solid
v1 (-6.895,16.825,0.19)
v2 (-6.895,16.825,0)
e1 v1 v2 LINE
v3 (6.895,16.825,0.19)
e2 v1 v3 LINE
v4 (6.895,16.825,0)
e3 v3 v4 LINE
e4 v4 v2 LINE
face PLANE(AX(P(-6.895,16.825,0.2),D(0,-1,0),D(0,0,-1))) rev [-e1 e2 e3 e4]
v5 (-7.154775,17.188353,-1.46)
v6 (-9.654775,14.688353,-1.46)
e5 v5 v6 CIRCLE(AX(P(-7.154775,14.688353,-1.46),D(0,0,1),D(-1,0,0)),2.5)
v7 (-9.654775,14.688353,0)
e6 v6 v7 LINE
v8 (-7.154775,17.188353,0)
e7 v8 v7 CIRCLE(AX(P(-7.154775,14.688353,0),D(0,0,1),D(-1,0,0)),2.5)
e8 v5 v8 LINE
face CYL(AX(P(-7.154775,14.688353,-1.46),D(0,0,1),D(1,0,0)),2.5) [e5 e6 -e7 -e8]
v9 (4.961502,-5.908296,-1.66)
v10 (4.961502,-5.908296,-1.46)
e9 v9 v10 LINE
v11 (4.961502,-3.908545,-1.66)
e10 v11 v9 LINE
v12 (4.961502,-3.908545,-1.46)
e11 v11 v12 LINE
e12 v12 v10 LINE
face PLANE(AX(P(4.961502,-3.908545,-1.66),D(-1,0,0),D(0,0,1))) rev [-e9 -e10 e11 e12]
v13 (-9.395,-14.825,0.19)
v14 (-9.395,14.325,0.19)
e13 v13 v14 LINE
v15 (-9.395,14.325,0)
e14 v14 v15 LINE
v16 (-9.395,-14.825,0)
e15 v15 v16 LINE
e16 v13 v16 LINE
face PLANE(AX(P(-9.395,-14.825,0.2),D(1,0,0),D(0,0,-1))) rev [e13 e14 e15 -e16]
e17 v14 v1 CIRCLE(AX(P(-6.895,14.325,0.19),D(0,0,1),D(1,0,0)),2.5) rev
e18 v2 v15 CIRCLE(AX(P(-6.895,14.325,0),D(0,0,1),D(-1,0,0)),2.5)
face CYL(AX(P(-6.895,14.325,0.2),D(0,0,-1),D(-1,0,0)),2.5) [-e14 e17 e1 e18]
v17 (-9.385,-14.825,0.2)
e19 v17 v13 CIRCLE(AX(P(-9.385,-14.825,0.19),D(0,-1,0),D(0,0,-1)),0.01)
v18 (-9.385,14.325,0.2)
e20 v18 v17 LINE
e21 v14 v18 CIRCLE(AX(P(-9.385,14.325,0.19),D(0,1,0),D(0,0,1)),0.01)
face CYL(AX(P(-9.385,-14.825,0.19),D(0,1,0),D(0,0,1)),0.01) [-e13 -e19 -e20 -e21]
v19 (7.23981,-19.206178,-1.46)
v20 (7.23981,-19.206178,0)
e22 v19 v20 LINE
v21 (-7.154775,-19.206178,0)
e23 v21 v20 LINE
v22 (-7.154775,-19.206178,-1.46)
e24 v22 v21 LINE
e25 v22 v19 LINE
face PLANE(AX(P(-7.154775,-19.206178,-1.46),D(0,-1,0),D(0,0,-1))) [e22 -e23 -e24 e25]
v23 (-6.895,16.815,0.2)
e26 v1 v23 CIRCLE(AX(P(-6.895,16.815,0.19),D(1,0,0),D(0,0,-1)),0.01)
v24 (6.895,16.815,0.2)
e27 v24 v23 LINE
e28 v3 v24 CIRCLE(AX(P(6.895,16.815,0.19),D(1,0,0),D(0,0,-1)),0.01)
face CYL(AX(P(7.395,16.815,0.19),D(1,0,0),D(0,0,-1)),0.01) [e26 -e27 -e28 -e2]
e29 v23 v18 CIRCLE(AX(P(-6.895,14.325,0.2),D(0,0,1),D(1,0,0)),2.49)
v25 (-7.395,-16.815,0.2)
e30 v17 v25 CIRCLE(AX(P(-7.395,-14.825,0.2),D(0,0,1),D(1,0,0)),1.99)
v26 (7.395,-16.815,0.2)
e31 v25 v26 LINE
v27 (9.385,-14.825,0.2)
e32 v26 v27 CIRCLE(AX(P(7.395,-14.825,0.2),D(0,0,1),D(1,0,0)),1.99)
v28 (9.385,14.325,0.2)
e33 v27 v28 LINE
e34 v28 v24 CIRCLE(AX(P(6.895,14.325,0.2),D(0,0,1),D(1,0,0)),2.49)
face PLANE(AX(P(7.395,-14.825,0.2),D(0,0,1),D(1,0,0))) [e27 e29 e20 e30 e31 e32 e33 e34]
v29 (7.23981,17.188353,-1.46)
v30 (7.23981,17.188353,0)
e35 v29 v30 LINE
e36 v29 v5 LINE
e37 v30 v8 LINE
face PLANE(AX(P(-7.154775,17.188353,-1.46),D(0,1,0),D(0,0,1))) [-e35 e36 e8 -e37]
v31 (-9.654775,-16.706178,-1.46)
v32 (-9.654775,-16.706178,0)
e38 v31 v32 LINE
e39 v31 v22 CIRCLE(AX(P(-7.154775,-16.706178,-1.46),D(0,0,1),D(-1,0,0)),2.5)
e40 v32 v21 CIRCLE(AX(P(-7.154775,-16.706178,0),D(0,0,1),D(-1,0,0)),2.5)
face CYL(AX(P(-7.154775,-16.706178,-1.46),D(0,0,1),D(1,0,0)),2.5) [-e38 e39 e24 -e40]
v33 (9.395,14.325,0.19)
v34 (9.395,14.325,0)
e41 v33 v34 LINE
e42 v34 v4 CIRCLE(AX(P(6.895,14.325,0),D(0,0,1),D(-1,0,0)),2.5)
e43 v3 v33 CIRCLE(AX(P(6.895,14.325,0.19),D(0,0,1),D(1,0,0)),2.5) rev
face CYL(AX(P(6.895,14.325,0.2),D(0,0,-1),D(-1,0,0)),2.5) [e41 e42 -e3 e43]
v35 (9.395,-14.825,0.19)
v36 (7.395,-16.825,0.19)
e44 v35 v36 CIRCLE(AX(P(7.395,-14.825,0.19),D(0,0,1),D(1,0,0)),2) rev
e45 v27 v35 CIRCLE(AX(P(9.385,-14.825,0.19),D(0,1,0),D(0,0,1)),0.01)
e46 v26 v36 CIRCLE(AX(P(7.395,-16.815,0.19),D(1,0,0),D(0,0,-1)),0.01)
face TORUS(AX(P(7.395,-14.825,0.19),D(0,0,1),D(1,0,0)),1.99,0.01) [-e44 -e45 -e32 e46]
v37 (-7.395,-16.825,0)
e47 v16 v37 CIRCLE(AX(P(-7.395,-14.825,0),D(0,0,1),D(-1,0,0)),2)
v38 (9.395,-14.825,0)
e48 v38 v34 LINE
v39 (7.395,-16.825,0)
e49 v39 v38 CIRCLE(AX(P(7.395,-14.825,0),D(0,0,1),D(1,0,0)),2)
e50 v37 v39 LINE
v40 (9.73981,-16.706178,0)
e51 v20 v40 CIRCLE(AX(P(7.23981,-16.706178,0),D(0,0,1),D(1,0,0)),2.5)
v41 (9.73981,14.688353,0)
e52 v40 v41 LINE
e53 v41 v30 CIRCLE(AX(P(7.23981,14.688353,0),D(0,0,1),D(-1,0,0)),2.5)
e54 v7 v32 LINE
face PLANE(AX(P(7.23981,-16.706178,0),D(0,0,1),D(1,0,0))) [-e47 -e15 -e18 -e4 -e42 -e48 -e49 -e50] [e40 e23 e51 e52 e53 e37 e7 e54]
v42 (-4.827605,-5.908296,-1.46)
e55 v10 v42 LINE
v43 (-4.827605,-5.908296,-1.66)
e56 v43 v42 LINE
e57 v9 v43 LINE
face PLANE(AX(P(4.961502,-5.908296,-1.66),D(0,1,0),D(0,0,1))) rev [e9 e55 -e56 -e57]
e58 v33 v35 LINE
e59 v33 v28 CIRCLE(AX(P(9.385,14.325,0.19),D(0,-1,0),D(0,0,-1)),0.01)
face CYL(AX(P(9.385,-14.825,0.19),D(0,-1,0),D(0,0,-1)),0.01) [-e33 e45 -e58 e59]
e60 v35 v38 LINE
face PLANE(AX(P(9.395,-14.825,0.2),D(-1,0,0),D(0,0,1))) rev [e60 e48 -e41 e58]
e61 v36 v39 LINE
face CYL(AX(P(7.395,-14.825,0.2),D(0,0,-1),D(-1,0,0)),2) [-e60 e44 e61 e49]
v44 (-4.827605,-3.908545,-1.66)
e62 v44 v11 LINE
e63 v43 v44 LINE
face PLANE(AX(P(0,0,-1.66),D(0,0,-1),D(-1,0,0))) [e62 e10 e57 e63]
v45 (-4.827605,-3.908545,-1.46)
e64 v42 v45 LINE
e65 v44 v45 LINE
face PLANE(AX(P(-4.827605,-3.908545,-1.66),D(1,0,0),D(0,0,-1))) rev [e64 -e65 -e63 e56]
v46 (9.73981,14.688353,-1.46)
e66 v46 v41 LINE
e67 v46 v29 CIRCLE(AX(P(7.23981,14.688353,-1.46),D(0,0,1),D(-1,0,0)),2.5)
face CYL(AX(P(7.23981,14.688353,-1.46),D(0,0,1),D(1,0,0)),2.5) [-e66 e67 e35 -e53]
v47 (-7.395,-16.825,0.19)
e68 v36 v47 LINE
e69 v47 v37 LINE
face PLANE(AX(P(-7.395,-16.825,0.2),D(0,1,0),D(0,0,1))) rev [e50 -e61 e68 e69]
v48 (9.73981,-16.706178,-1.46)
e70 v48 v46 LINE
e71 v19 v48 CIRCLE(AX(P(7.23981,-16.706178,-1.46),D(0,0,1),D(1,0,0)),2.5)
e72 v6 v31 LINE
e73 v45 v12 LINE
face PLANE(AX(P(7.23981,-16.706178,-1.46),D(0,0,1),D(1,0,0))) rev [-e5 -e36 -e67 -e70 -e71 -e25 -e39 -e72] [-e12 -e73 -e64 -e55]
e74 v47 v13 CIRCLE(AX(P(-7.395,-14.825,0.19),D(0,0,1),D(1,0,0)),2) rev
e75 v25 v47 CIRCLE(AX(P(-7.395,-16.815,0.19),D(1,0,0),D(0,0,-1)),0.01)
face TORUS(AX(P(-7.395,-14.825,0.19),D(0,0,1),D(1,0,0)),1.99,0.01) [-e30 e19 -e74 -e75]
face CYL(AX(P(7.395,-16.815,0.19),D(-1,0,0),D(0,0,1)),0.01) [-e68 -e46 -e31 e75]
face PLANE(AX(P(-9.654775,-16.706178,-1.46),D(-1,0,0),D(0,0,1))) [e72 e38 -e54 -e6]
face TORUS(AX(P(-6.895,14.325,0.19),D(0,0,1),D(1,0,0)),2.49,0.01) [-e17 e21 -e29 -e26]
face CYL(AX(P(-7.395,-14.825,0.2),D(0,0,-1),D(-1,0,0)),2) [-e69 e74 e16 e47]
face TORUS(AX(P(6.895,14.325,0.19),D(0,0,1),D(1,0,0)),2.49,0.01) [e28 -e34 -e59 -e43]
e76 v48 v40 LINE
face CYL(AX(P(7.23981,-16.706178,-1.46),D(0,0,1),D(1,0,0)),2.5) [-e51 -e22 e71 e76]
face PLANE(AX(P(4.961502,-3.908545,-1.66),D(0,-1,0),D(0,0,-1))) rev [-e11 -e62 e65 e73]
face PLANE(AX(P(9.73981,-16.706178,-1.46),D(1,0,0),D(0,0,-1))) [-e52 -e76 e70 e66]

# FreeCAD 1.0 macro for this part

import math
import FreeCAD as App
import Part
import Sketcher

V = App.Vector
Q = App.Units.Quantity


def edges_at(feature, points):
    """Names of the edges that pass closest to the given points."""
    edges = feature.Shape.Edges
    near = lambda p: min(range(len(edges)), key=lambda i: edges[i].distToShape(Part.Vertex(*p))[0])
    return sorted({f"Edge{near(p) + 1}" for p in points})


def add_polygon(sketch, points):
    """Adds a closed chain of lines whose ends are joined by coincident constraints."""
    first, n = sketch.GeometryCount, len(points)
    for a, b in zip(points, points[1:] + points[:1]):
        sketch.addGeometry(Part.LineSegment(App.Vector(*a, 0), App.Vector(*b, 0)), False)
    for i in range(n):
        sketch.addConstraint(Sketcher.Constraint("Coincident", first + i, 2, first + (i + 1) % n, 1))

doc = App.newDocument("Part")
body = doc.addObject("PartDesign::Body", "Body")

# Sketch on XY plane
sketch1 = body.newObject("Sketcher::SketchObject", "Sketch")
sketch1.AttachmentSupport = (doc.getObject("XY_Plane"), [""])
sketch1.MapMode = "FlatFace"
sketch1.addGeometry([
    Part.LineSegment(V(-7.154775, -19.206178, 0), V(7.23981, -19.206178, 0)),  # 0
    Part.ArcOfCircle(Part.Circle(V(7.23981, -16.706178, 0), V(0, 0, 1), 2.5), math.radians(-90), math.radians(0)),  # 1
    Part.LineSegment(V(9.73981, -16.706178, 0), V(9.73981, 14.688353, 0)),  # 2
    Part.ArcOfCircle(Part.Circle(V(7.23981, 14.688353, 0), V(0, 0, 1), 2.5), math.radians(0), math.radians(90)),  # 3
    Part.LineSegment(V(7.23981, 17.188353, 0), V(-7.154775, 17.188353, 0)),  # 4
    Part.ArcOfCircle(Part.Circle(V(-7.154775, 14.688353, 0), V(0, 0, 1), 2.5), math.radians(90), math.radians(180)),  # 5
    Part.LineSegment(V(-9.654775, 14.688353, 0), V(-9.654775, -16.706178, 0)),  # 6
    Part.ArcOfCircle(Part.Circle(V(-7.154775, -16.706178, 0), V(0, 0, 1), 2.5), math.radians(180), math.radians(270)),  # 7
], False)
sketch1.addConstraint([
    Sketcher.Constraint("Tangent", 0, 2, 1, 1),
    Sketcher.Constraint("Tangent", 1, 2, 2, 1),
    Sketcher.Constraint("Tangent", 2, 2, 3, 1),
    Sketcher.Constraint("Tangent", 3, 2, 4, 1),
    Sketcher.Constraint("Tangent", 4, 2, 5, 1),
    Sketcher.Constraint("Tangent", 5, 2, 6, 1),
    Sketcher.Constraint("Tangent", 6, 2, 7, 1),
    Sketcher.Constraint("Tangent", 7, 2, 0, 1),
    Sketcher.Constraint("Horizontal", 0),
    Sketcher.Constraint("Vertical", 2),
    Sketcher.Constraint("Horizontal", 4),
    Sketcher.Constraint("Vertical", 6),
    Sketcher.Constraint("Equal", 1, 3),
    Sketcher.Constraint("Equal", 3, 5),
    Sketcher.Constraint("Equal", 5, 7),
    Sketcher.Constraint("Radius", 1, Q("2.5 mm")),
    Sketcher.Constraint("DistanceY", 2, 1, 2, 2, Q("31.394531 mm")),
    Sketcher.Constraint("DistanceX", 0, 1, 0, 2, Q("14.394585 mm")),
    Sketcher.Constraint("DistanceX", -1, 1, 1, 3, Q("7.23981 mm")),
    Sketcher.Constraint("DistanceY", 1, 3, -1, 1, Q("16.706178 mm")),
])
pad1 = body.newObject("PartDesign::Pad", "Pad")
pad1.Profile = sketch1
pad1.Length = 1.46
pad1.Reversed = True

# Sketch on XY plane
sketch2 = body.newObject("Sketcher::SketchObject", "Sketch001")
sketch2.AttachmentSupport = (doc.getObject("XY_Plane"), [""])
sketch2.MapMode = "FlatFace"
sketch2.addGeometry([
    Part.LineSegment(V(-6.695, -16.175, 0), V(6.695, -16.175, 0)),  # 0
    Part.ArcOfCircle(Part.Circle(V(6.695, -14.175, 0), V(0, 0, 1), 2), math.radians(-90), math.radians(0)),  # 1
    Part.LineSegment(V(8.695, -14.175, 0), V(8.695, 14.175, 0)),  # 2
    Part.ArcOfCircle(Part.Circle(V(6.695, 14.175, 0), V(0, 0, 1), 2), math.radians(0), math.radians(90)),  # 3
    Part.LineSegment(V(6.695, 16.175, 0), V(-6.695, 16.175, 0)),  # 4
    Part.ArcOfCircle(Part.Circle(V(-6.695, 14.175, 0), V(0, 0, 1), 2), math.radians(90), math.radians(180)),  # 5
    Part.LineSegment(V(-8.695, 14.175, 0), V(-8.695, -14.175, 0)),  # 6
    Part.ArcOfCircle(Part.Circle(V(-6.695, -14.175, 0), V(0, 0, 1), 2), math.radians(-180), math.radians(-90)),  # 7
], False)
sketch2.addConstraint([
    Sketcher.Constraint("Tangent", 0, 2, 1, 1),
    Sketcher.Constraint("Tangent", 1, 2, 2, 1),
    Sketcher.Constraint("Tangent", 2, 2, 3, 1),
    Sketcher.Constraint("Tangent", 3, 2, 4, 1),
    Sketcher.Constraint("Tangent", 4, 2, 5, 1),
    Sketcher.Constraint("Tangent", 5, 2, 6, 1),
    Sketcher.Constraint("Tangent", 6, 2, 7, 1),
    Sketcher.Constraint("Tangent", 7, 2, 0, 1),
    Sketcher.Constraint("Horizontal", 0),
    Sketcher.Constraint("Vertical", 2),
    Sketcher.Constraint("Horizontal", 4),
    Sketcher.Constraint("Vertical", 6),
    Sketcher.Constraint("Equal", 1, 3),
    Sketcher.Constraint("Equal", 3, 5),
    Sketcher.Constraint("Equal", 5, 7),
    Sketcher.Constraint("Symmetric", 1, 3, 5, 3, -1, 1),
    Sketcher.Constraint("Radius", 1, Q("2 mm")),
    Sketcher.Constraint("DistanceX", 0, 1, 0, 2, Q("13.39 mm")),
    Sketcher.Constraint("DistanceY", 2, 1, 2, 2, Q("28.35 mm")),
])
pad2 = body.newObject("PartDesign::Pad", "Pad001")
pad2.Profile = sketch2
pad2.Length = 0.15

# Sketch on XY plane
sketch3 = body.newObject("Sketcher::SketchObject", "Sketch002")
sketch3.AttachmentSupport = (doc.getObject("XY_Plane"), [""])
sketch3.MapMode = "FlatFace"
sketch3.addGeometry([
    Part.LineSegment(V(-7.395, -16.825, 0), V(7.395, -16.825, 0)),  # 0
    Part.ArcOfCircle(Part.Circle(V(7.395, -14.825, 0), V(0, 0, 1), 2), math.radians(-90), math.radians(0)),  # 1
    Part.LineSegment(V(9.395, -14.825, 0), V(9.395, 14.325, 0)),  # 2
    Part.ArcOfCircle(Part.Circle(V(6.895, 14.325, 0), V(0, 0, 1), 2.5), math.radians(0), math.radians(90)),  # 3
    Part.LineSegment(V(6.895, 16.825, 0), V(-6.895, 16.825, 0)),  # 4
    Part.ArcOfCircle(Part.Circle(V(-6.895, 14.325, 0), V(0, 0, 1), 2.5), math.radians(90), math.radians(180)),  # 5
    Part.LineSegment(V(-9.395, 14.325, 0), V(-9.395, -14.825, 0)),  # 6
    Part.ArcOfCircle(Part.Circle(V(-7.395, -14.825, 0), V(0, 0, 1), 2), math.radians(-180), math.radians(-90)),  # 7
], False)
sketch3.addConstraint([
    Sketcher.Constraint("Tangent", 0, 2, 1, 1),
    Sketcher.Constraint("Tangent", 1, 2, 2, 1),
    Sketcher.Constraint("Tangent", 2, 2, 3, 1),
    Sketcher.Constraint("Tangent", 3, 2, 4, 1),
    Sketcher.Constraint("Tangent", 4, 2, 5, 1),
    Sketcher.Constraint("Tangent", 5, 2, 6, 1),
    Sketcher.Constraint("Tangent", 6, 2, 7, 1),
    Sketcher.Constraint("Tangent", 7, 2, 0, 1),
    Sketcher.Constraint("Horizontal", 0),
    Sketcher.Constraint("Vertical", 2),
    Sketcher.Constraint("Horizontal", 4),
    Sketcher.Constraint("Vertical", 6),
    Sketcher.Constraint("Equal", 3, 5),
    Sketcher.Constraint("Equal", 1, 7),
    Sketcher.Constraint("Radius", 1, Q("2 mm")),
    Sketcher.Constraint("Radius", 3, Q("2.5 mm")),
    Sketcher.Constraint("DistanceX", 0, 1, 0, 2, Q("14.79 mm")),
    Sketcher.Constraint("DistanceY", 2, 1, 2, 2, Q("29.15 mm")),
    Sketcher.Constraint("DistanceX", -1, 1, 1, 3, Q("7.395 mm")),
    Sketcher.Constraint("DistanceY", 1, 3, -1, 1, Q("14.825 mm")),
])
pad3 = body.newObject("PartDesign::Pad", "Pad002")
pad3.Profile = sketch3
pad3.Length = 0.2
doc.recompute()

fillet = body.newObject("PartDesign::Fillet", "Fillet")
fillet.Base = (pad3, edges_at(pad3, [
    (8.809, -16.239, 0.2),
    (9.395, -0.25, 0.2),
    (8.663, 16.093, 0.2),
    (0, 16.825, 0.2),
    (-8.663, 16.093, 0.2),
    (-9.395, -0.25, 0.2),
    (-8.809, -16.239, 0.2),
    (0, -16.825, 0.2),
]))
fillet.Radius = 0.01

# Sketch on XY plane
sketch4 = body.newObject("Sketcher::SketchObject", "Sketch003")
sketch4.AttachmentSupport = (doc.getObject("XY_Plane"), [""])
sketch4.MapMode = "FlatFace"
sketch4.AttachmentOffset = App.Placement(V(0, 0, -1.46), App.Rotation())
add_polygon(sketch4, [(4.961502, -3.908545), (4.961502, -5.908296), (-4.827605, -5.908296), (-4.827605, -3.908545)])  # lines 0-3
sketch4.addConstraint([
    Sketcher.Constraint("Vertical", 0),
    Sketcher.Constraint("Horizontal", 1),
    Sketcher.Constraint("Vertical", 2),
    Sketcher.Constraint("Horizontal", 3),
    Sketcher.Constraint("DistanceY", 0, 2, 0, 1, Q("1.999751 mm")),
    Sketcher.Constraint("DistanceX", 1, 2, 1, 1, Q("9.789107 mm")),
    Sketcher.Constraint("DistanceX", -1, 1, 0, 2, Q("4.961502 mm")),
    Sketcher.Constraint("DistanceY", 0, 2, -1, 1, Q("5.908296 mm")),
])
pad4 = body.newObject("PartDesign::Pad", "Pad003")
pad4.Profile = sketch4
pad4.Length = 0.2
pad4.Reversed = True

doc.recompute()
